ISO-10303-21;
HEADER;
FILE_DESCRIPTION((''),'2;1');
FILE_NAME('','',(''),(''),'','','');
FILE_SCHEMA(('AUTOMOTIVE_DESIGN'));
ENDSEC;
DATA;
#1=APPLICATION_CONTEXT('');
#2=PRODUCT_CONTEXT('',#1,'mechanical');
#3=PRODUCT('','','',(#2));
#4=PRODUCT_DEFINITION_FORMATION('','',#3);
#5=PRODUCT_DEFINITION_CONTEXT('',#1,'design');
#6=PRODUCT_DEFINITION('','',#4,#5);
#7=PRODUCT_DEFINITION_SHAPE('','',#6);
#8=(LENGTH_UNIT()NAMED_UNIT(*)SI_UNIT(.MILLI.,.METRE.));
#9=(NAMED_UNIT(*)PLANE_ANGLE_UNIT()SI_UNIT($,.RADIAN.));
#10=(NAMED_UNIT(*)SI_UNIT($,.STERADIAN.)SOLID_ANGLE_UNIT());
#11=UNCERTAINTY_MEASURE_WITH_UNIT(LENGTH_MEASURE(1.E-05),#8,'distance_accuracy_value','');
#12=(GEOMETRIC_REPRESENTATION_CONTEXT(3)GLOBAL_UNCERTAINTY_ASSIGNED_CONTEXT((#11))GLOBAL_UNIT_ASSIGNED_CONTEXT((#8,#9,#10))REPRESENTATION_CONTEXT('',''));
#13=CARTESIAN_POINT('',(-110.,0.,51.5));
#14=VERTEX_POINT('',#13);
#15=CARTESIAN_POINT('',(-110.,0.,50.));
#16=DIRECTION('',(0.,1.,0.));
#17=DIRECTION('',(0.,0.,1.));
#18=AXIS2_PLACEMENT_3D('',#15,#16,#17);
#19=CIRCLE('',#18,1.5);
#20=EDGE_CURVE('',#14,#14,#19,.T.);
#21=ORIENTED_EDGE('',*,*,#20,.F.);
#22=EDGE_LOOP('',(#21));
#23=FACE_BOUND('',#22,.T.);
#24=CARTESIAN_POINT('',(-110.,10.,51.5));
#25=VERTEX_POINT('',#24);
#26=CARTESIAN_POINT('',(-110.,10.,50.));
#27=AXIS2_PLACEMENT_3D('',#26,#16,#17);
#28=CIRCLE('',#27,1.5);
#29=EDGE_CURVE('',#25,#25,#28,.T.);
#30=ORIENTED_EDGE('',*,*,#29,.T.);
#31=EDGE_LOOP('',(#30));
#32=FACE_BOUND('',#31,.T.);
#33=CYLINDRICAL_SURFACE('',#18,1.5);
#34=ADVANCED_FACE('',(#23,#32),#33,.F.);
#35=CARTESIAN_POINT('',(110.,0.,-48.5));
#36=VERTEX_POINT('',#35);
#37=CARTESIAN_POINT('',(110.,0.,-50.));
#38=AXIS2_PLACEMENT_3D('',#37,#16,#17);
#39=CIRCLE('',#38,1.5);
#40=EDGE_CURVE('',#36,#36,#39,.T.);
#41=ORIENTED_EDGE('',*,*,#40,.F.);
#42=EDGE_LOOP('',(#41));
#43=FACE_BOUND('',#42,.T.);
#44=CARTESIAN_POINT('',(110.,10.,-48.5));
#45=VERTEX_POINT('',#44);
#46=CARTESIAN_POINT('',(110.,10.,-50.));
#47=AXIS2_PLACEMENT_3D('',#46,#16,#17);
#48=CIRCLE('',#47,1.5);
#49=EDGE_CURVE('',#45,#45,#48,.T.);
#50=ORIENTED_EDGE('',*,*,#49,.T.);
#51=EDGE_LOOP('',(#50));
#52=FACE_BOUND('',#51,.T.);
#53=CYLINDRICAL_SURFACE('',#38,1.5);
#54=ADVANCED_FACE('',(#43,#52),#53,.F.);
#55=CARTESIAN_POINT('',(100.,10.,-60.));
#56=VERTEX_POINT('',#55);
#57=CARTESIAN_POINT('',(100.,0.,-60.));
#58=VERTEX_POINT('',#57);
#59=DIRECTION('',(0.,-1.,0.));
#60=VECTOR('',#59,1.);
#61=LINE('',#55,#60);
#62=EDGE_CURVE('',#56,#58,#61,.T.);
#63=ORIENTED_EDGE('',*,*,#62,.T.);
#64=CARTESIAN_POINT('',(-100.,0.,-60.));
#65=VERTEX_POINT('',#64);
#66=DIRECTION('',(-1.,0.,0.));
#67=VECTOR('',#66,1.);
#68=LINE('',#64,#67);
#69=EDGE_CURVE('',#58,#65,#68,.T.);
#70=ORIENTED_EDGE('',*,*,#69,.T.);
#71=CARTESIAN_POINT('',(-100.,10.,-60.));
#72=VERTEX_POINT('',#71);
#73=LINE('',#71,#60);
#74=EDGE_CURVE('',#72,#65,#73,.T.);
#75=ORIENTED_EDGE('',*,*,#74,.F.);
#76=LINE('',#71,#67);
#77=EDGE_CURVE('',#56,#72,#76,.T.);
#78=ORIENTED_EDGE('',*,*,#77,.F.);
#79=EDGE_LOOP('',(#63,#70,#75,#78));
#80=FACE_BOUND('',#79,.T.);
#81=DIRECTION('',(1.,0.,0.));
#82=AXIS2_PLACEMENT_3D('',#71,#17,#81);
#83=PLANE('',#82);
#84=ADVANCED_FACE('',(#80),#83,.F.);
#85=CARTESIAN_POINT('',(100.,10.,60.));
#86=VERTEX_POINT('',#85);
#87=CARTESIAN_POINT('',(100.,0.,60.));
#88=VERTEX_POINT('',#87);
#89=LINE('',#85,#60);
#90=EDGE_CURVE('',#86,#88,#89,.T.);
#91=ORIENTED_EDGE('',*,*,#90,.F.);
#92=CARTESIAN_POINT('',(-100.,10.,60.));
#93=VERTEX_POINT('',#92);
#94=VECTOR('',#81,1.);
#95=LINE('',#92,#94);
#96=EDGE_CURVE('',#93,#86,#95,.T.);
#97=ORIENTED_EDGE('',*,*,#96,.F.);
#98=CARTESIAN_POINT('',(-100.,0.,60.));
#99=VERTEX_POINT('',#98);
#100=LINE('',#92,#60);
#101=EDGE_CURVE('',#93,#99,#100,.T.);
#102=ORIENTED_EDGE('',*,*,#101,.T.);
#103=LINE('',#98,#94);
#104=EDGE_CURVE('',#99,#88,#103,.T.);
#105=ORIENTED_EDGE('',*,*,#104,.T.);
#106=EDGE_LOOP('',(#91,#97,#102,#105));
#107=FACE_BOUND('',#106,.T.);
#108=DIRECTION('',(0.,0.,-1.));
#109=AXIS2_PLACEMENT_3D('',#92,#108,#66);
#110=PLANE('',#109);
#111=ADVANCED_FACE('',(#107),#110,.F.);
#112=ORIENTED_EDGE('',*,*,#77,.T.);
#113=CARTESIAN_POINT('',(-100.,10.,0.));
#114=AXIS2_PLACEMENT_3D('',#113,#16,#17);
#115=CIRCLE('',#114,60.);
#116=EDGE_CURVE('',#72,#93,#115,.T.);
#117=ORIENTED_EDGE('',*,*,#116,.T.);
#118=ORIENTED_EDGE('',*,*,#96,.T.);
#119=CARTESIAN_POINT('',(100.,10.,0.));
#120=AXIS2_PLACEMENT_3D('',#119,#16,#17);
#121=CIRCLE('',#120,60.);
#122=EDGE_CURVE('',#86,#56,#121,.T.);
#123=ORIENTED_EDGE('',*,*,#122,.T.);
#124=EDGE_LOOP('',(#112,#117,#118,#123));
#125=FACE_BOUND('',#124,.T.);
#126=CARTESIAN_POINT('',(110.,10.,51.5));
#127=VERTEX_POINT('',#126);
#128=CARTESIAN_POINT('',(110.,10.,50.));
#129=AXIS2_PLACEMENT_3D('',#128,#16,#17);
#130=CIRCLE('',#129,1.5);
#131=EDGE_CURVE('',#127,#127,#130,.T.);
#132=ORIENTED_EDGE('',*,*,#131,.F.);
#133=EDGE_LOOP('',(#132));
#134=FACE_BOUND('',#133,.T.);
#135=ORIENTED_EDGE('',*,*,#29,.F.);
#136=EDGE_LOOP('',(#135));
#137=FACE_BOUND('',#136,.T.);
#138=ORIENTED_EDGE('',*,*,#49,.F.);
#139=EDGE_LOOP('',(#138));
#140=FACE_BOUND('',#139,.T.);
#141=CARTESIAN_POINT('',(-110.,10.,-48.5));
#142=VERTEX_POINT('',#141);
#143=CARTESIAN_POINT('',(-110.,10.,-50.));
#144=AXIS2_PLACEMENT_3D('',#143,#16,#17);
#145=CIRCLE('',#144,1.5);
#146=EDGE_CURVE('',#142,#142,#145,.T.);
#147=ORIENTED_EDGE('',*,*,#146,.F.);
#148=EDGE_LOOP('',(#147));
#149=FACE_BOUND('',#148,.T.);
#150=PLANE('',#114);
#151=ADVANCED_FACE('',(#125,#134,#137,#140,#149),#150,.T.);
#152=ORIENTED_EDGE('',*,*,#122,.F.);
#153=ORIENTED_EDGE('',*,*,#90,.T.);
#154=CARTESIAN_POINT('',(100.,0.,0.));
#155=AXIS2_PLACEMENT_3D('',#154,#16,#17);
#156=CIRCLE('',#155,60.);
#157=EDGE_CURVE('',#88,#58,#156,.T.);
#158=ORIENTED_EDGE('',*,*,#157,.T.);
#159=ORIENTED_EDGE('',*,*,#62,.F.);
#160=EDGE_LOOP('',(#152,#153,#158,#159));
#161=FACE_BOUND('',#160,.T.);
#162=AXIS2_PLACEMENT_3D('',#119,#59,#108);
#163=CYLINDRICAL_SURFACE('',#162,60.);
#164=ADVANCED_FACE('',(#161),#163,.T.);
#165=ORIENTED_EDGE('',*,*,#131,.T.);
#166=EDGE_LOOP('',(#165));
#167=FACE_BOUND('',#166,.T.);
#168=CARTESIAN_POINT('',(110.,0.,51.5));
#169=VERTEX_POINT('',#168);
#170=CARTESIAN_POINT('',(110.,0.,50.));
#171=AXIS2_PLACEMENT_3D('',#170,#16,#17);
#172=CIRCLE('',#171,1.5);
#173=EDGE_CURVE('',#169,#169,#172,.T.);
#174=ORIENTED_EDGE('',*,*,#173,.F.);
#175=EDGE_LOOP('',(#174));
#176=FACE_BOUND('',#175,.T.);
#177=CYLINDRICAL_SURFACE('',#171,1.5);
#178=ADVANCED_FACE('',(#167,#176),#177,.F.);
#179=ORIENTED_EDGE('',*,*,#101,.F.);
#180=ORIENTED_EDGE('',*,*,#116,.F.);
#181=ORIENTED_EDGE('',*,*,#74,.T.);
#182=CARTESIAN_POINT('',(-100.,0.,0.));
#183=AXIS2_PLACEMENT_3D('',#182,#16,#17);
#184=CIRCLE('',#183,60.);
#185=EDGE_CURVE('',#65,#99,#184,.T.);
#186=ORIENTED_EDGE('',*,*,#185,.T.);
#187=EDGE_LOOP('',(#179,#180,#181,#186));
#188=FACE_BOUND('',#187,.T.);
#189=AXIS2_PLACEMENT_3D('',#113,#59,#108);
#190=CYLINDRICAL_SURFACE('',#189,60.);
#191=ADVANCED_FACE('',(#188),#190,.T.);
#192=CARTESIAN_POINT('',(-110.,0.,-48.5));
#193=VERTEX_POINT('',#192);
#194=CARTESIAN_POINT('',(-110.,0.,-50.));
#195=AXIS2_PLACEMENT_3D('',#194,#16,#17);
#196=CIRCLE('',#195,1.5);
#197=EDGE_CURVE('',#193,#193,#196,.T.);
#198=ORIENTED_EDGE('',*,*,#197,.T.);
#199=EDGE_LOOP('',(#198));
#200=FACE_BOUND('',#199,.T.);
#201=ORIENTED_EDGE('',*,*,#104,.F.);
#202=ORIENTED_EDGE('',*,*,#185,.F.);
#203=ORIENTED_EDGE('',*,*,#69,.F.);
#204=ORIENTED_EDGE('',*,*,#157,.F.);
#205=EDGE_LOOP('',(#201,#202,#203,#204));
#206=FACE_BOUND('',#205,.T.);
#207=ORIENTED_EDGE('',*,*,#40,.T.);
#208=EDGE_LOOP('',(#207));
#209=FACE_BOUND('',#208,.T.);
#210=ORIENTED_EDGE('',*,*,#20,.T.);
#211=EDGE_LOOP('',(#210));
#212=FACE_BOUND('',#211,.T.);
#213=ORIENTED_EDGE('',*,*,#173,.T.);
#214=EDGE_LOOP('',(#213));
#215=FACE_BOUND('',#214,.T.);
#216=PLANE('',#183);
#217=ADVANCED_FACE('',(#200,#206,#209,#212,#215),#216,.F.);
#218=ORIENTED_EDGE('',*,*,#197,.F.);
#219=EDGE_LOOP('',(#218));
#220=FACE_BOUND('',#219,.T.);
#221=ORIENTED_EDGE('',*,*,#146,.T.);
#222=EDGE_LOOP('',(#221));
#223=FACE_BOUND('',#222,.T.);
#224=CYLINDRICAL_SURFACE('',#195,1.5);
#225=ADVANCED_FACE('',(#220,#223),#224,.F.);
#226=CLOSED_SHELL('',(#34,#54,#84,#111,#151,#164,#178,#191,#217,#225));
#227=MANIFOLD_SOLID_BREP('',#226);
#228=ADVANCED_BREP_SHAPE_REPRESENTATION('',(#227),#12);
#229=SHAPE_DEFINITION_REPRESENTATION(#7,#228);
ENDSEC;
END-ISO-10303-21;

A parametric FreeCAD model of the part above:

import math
import FreeCAD as App
import Part
import Sketcher
from FreeCAD import Vector

doc = App.newDocument("Part")
params = doc.addObject("Spreadsheet::Sheet", "Params")
for row, (alias, value) in enumerate([
    ("sketch1_radius", "60 mm"),
    ("sketch1_width", "200 mm"),
    ("pad1_length", "10 mm"),
    ("sketch2_diameter", "3 mm"),
], start=1):
    params.set(f"A{row}", alias)
    params.set(f"B{row}", "=" + value)
    params.setAlias(f"B{row}", alias)

body = doc.addObject("PartDesign::Body", "Body")

# Sketch on XZ plane
sketch1 = body.newObject("Sketcher::SketchObject", "Sketch")
sketch1.AttachmentSupport = (doc.getObject("XZ_Plane"), [""])
sketch1.MapMode = "FlatFace"
sketch1.addGeometry([
    Part.LineSegment(Vector(100, -60, 0), Vector(-100, -60, 0)),
    Part.ArcOfCircle(Part.Circle(Vector(-100, 0, 0), Vector(0, 0, 1), 60), math.radians(90), math.radians(270)),
    Part.LineSegment(Vector(-100, 60, 0), Vector(100, 60, 0)),
    Part.ArcOfCircle(Part.Circle(Vector(100, 0, 0), Vector(0, 0, 1), 60), math.radians(-90), math.radians(90)),
], False)
sketch1.addConstraint([
    Sketcher.Constraint("Tangent", 0, 2, 1, 2),
    Sketcher.Constraint("Tangent", 1, 1, 2, 1),
    Sketcher.Constraint("Tangent", 2, 2, 3, 2),
    Sketcher.Constraint("Tangent", 3, 1, 0, 1),
    Sketcher.Constraint("Horizontal", 0),
    Sketcher.Constraint("Horizontal", 2),
    Sketcher.Constraint("Symmetric", 1, 3, 3, 3, -1, 1),
    Sketcher.Constraint("Radius", 1, 60.0),
    Sketcher.Constraint("DistanceX", 0, 2, 0, 1, 200.0),
])
sketch1.setExpression("Constraints[7]", "Params.sketch1_radius")
sketch1.setExpression("Constraints[8]", "Params.sketch1_width")
pad1 = body.newObject("PartDesign::Pad", "Pad")
pad1.Profile = sketch1
pad1.setExpression("Length", "Params.pad1_length")
pad1.Reversed = True

# Sketch on XZ plane
sketch2 = body.newObject("Sketcher::SketchObject", "Sketch001")
sketch2.AttachmentSupport = (doc.getObject("XZ_Plane"), [""])
sketch2.MapMode = "FlatFace"
sketch2.AttachmentOffset = App.Placement(Vector(0, 0, -10), App.Rotation())
sketch2.addGeometry([
    Part.Circle(Vector(-110, -50, 0), Vector(0, 0, 1), 1.5),
    Part.Circle(Vector(-110, 50, 0), Vector(0, 0, 1), 1.5),
    Part.Circle(Vector(110, 50, 0), Vector(0, 0, 1), 1.5),
    Part.Circle(Vector(110, -50, 0), Vector(0, 0, 1), 1.5),
], False)
sketch2.addConstraint([
    Sketcher.Constraint("Equal", 0, 1),
    Sketcher.Constraint("Equal", 1, 2),
    Sketcher.Constraint("Equal", 2, 3),
    Sketcher.Constraint("Symmetric", 0, 3, 2, 3, -1, 1),
    Sketcher.Constraint("Symmetric", 1, 3, 3, 3, -1, 1),
    Sketcher.Constraint("Symmetric", 1, 3, 2, 3, -2),
    Sketcher.Constraint("Diameter", 0, 3.0),
    Sketcher.Constraint("DistanceX", 0, 3, -1, 1, 110.0),
    Sketcher.Constraint("DistanceY", 0, 3, -1, 1, 50.0),
])
sketch2.setExpression("Constraints[6]", "Params.sketch2_diameter")
pocket1 = body.newObject("PartDesign::Pocket", "Pocket")
pocket1.Profile = sketch2
pocket1.Type = "ThroughAll"
pocket1.Reversed = True

doc.recompute()
